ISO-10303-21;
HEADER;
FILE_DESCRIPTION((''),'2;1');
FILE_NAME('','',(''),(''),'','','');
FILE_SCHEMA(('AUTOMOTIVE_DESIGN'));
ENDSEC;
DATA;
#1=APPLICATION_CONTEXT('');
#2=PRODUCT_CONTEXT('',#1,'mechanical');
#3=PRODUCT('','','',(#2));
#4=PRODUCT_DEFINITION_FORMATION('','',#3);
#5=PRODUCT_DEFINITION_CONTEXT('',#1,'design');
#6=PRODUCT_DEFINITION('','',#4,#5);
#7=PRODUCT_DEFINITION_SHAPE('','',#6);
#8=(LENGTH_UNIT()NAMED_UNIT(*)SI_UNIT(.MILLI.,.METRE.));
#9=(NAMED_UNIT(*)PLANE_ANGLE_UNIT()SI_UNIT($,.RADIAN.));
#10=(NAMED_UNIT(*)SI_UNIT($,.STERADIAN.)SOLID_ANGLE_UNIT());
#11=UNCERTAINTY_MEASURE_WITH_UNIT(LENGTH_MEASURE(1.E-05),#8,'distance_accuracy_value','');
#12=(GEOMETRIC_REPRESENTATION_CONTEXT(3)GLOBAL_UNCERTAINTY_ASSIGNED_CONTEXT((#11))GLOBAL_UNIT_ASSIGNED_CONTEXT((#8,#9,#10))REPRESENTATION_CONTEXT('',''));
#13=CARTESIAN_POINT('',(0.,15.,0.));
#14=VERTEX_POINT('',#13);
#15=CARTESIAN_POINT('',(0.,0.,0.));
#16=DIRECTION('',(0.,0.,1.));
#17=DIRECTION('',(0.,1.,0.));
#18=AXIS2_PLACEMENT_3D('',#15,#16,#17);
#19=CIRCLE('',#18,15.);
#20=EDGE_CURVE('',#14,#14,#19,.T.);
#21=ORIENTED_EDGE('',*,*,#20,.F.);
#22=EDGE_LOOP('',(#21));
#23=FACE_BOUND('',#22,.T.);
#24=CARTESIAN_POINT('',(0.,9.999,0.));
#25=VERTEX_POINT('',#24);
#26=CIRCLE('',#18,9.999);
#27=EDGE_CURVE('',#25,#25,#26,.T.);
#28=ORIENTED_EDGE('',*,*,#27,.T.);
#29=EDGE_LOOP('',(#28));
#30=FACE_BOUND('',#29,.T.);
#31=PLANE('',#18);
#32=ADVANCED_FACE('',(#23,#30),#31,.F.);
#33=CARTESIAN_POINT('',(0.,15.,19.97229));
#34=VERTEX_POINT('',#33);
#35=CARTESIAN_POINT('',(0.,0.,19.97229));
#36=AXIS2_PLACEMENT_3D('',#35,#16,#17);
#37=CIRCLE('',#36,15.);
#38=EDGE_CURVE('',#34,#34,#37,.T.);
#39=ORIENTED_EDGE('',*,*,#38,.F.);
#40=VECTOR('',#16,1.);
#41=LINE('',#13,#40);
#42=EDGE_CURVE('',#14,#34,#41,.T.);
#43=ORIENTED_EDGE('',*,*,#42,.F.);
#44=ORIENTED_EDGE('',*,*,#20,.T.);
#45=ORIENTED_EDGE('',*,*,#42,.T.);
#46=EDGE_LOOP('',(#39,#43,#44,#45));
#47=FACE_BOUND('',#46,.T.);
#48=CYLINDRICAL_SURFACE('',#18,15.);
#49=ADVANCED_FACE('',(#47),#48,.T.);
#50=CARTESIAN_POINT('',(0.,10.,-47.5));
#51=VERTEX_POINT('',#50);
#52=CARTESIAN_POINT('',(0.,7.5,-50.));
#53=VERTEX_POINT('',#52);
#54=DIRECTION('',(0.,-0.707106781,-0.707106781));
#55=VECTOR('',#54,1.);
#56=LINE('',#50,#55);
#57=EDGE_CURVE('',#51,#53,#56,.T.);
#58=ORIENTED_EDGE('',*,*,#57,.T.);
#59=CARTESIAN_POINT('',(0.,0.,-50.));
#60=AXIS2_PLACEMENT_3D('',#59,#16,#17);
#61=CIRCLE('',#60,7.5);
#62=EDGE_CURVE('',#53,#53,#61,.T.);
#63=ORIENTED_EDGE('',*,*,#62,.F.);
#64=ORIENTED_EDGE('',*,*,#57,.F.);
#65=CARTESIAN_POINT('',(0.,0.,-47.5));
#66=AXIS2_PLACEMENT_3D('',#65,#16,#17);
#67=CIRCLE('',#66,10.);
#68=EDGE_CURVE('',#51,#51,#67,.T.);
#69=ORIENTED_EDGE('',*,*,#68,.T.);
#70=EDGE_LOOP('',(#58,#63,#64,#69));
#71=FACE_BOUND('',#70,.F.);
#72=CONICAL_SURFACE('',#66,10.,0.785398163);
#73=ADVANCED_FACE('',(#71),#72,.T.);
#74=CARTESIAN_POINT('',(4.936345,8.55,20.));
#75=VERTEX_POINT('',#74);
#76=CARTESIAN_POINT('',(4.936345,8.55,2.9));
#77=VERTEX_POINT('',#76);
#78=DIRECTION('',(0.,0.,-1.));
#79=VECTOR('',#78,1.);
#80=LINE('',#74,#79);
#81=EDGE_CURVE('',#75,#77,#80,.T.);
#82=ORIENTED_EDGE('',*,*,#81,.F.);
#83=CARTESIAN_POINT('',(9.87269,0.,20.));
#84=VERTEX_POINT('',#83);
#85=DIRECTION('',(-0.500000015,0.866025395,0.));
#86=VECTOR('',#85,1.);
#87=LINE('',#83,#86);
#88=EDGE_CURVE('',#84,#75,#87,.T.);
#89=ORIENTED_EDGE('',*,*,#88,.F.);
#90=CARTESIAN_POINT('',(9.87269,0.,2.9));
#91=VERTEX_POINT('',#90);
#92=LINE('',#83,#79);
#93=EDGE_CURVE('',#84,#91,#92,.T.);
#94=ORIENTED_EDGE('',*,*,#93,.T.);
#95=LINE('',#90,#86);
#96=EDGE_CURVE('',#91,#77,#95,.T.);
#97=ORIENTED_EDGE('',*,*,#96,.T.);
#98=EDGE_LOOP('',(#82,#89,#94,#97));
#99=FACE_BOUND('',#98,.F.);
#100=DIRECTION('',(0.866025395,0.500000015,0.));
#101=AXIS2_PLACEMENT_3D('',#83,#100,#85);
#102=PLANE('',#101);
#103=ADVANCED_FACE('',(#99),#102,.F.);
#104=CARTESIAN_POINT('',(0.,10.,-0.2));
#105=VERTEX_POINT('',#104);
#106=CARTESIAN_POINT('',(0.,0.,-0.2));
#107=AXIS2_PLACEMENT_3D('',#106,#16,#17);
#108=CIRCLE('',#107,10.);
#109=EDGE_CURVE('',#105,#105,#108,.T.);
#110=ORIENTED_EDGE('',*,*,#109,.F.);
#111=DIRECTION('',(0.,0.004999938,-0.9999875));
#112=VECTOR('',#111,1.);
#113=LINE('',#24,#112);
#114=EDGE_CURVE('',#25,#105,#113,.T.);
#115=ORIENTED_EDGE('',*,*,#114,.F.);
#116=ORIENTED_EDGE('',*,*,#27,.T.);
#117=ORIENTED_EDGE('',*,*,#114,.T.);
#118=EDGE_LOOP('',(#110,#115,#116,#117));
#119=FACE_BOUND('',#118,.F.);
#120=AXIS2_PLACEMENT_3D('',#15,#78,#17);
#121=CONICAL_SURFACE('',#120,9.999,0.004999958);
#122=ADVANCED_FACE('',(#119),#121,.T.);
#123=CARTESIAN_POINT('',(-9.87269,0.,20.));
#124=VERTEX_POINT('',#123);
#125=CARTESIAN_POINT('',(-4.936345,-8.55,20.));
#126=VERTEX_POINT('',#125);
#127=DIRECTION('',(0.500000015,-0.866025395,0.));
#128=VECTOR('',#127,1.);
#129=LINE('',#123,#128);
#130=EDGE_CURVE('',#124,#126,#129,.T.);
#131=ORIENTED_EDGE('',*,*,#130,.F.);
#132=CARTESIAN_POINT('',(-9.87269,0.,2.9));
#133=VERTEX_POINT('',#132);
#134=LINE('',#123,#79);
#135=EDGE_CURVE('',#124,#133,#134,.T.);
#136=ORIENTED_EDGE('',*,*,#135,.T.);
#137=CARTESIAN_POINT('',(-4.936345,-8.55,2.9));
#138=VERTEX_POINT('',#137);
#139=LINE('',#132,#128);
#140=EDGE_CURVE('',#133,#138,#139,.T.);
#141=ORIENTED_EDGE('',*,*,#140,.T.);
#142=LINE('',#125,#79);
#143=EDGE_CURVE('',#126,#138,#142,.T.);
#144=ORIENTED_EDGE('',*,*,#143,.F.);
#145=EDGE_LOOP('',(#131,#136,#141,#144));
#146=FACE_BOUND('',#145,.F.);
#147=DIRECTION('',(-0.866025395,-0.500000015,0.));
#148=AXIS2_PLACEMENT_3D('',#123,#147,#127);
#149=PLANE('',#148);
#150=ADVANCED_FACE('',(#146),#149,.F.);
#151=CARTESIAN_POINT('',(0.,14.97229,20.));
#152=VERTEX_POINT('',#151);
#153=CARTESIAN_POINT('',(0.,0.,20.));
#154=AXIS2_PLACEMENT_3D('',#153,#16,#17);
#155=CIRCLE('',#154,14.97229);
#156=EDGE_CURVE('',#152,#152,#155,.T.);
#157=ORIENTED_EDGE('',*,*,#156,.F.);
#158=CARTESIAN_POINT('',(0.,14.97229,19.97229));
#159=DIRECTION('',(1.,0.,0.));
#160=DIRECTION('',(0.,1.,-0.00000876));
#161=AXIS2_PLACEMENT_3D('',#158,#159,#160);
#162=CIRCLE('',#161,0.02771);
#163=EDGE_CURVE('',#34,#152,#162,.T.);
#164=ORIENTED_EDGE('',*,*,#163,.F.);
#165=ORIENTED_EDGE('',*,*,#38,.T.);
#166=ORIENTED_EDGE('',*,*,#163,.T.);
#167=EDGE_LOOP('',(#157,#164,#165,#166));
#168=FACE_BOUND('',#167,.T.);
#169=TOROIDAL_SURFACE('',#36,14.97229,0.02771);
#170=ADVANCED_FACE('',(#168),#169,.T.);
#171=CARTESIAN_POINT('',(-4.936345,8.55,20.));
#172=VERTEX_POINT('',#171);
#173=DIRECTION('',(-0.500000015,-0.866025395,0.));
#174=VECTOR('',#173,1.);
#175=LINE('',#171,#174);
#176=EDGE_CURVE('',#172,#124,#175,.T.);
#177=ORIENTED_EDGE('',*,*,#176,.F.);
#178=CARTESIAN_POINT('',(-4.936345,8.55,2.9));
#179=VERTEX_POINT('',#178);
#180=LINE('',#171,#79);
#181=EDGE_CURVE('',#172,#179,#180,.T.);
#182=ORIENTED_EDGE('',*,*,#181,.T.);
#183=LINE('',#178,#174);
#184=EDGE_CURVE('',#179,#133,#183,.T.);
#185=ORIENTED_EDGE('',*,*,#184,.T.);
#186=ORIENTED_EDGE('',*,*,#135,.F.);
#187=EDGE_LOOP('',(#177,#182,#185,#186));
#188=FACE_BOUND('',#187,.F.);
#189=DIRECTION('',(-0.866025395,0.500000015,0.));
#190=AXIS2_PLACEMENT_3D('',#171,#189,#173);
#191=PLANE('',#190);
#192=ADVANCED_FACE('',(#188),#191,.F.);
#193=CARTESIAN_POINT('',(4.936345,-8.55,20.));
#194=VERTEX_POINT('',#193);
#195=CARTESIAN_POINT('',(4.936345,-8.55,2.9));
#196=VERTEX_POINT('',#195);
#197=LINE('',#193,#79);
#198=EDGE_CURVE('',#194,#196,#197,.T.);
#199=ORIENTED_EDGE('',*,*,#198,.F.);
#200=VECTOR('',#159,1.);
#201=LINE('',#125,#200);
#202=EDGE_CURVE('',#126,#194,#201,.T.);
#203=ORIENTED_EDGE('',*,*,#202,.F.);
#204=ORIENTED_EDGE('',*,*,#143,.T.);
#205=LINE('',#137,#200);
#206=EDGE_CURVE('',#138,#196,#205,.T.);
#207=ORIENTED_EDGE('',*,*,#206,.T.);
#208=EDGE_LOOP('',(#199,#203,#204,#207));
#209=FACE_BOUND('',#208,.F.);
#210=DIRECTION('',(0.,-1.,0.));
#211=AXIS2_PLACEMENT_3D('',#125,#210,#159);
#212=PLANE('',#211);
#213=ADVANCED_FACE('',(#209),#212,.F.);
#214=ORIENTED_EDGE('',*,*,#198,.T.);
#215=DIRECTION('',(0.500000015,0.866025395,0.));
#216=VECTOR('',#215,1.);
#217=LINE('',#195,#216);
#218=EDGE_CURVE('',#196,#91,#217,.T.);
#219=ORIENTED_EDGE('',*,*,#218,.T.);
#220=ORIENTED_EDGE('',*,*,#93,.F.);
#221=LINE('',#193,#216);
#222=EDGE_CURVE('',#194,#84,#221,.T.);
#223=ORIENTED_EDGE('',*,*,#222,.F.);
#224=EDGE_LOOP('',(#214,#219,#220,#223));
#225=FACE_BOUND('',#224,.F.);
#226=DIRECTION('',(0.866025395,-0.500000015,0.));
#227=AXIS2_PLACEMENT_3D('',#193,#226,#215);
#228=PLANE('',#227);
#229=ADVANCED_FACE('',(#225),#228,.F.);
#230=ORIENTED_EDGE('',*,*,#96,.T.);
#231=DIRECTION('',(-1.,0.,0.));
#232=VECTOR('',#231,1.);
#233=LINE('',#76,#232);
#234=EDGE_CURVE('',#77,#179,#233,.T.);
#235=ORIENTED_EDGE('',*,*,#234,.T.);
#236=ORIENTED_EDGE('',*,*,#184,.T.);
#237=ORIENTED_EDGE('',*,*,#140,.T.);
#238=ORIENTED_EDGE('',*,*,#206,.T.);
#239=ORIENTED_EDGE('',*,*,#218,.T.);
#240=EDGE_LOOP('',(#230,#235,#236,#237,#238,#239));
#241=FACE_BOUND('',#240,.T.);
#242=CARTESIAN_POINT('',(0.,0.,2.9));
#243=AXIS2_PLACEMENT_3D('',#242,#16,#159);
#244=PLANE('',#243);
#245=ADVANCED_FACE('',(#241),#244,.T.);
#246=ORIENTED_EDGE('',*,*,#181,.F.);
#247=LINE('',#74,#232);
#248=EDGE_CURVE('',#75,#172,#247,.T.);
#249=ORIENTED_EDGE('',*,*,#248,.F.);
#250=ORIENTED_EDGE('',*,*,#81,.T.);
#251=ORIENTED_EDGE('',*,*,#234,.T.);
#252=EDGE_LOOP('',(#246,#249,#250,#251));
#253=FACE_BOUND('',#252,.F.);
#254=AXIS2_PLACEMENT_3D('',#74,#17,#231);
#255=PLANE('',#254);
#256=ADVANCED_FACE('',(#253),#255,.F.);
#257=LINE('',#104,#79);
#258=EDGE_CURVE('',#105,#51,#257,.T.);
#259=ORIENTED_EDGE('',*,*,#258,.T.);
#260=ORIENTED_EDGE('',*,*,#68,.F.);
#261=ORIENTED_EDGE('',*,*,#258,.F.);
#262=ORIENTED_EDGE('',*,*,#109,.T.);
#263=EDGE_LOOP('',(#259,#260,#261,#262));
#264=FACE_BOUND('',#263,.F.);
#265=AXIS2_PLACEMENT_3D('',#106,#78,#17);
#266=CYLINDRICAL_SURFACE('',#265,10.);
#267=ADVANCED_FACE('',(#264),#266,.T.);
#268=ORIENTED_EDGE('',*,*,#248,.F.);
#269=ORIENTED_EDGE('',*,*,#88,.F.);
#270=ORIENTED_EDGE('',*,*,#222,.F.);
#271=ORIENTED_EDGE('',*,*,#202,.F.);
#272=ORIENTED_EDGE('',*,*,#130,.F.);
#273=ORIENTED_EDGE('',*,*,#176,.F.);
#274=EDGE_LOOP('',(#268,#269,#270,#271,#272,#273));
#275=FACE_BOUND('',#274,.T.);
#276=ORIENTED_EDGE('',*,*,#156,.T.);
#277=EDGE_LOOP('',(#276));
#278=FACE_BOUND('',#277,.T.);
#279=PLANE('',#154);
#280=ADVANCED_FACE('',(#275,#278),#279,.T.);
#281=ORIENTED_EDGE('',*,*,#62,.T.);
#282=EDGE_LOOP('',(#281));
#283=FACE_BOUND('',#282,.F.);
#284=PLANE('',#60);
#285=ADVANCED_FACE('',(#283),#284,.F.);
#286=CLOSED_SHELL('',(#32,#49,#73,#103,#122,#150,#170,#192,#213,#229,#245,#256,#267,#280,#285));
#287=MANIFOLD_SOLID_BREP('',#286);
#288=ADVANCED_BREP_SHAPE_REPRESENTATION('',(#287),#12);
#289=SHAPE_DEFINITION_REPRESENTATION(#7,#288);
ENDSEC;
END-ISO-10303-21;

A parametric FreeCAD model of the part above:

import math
import FreeCAD as App
import Part
import Sketcher
from FreeCAD import Vector
Q = App.Units.Quantity

doc = App.newDocument("Part")
body = doc.addObject("PartDesign::Body", "Body")

sketch1 = body.newObject("Sketcher::SketchObject", "Sketch")
sketch1.AttachmentSupport = (doc.getObject("YZ_Plane"), [""])
sketch1.MapMode = "FlatFace"
sketch1.addGeometry(Part.LineSegment(Vector(9.999, 0, 0), Vector(15, 0, 0)), False)
sketch1.addGeometry(Part.LineSegment(Vector(15, 0, 0), Vector(15, 19.972, 0)), False)
sketch1.addGeometry(Part.ArcOfCircle(Part.Circle(Vector(14.972, 19.972, 0), Vector(0, 0, 1), 0.028), math.radians(0), math.radians(90)), False)
sketch1.addGeometry(Part.LineSegment(Vector(14.972, 20, 0), Vector(0, 20, 0)), False)
sketch1.addGeometry(Part.LineSegment(Vector(0, 20, 0), Vector(0, -50, 0)), False)
sketch1.addGeometry(Part.LineSegment(Vector(0, -50, 0), Vector(7.5, -50, 0)), False)
sketch1.addGeometry(Part.LineSegment(Vector(7.5, -50, 0), Vector(10, -47.5, 0)), False)
sketch1.addGeometry(Part.LineSegment(Vector(10, -47.5, 0), Vector(10, -0.2, 0)), False)
sketch1.addGeometry(Part.LineSegment(Vector(10, -0.2, 0), Vector(9.999, 0, 0)), False)
sketch1.addConstraint(Sketcher.Constraint("Coincident", 0, 2, 1, 1))
sketch1.addConstraint(Sketcher.Constraint("Coincident", 1, 2, 2, 1))
sketch1.addConstraint(Sketcher.Constraint("Coincident", 2, 2, 3, 1))
sketch1.addConstraint(Sketcher.Constraint("Coincident", 3, 2, 4, 1))
sketch1.addConstraint(Sketcher.Constraint("Coincident", 4, 2, 5, 1))
sketch1.addConstraint(Sketcher.Constraint("Coincident", 5, 2, 6, 1))
sketch1.addConstraint(Sketcher.Constraint("Coincident", 6, 2, 7, 1))
sketch1.addConstraint(Sketcher.Constraint("Coincident", 7, 2, 8, 1))
sketch1.addConstraint(Sketcher.Constraint("Coincident", 8, 2, 0, 1))
sketch1.addConstraint(Sketcher.Constraint("Horizontal", 0))
sketch1.addConstraint(Sketcher.Constraint("Vertical", 1))
sketch1.addConstraint(Sketcher.Constraint("Horizontal", 3))
sketch1.addConstraint(Sketcher.Constraint("Vertical", 4))
sketch1.addConstraint(Sketcher.Constraint("Horizontal", 5))
sketch1.addConstraint(Sketcher.Constraint("Vertical", 7))
sketch1.addConstraint(Sketcher.Constraint("PointOnObject", 0, 2, -1))
sketch1.addConstraint(Sketcher.Constraint("PointOnObject", 3, 2, -2))
sketch1.addConstraint(Sketcher.Constraint("Horizontal", 2, 3, 1, 2))
sketch1.addConstraint(Sketcher.Constraint("DistanceY", 4, 2, 4, 1, 70.0))
sketch1.addConstraint(Sketcher.Constraint("Angle", 6, Q("45 deg")))
sketch1.addConstraint(Sketcher.Constraint("DistanceX", 5, 1, 5, 2, 7.5))
sketch1.addConstraint(Sketcher.Constraint("DistanceY", 7, 1, 7, 2, 47.3))
sketch1.addConstraint(Sketcher.Constraint("DistanceX", -1, 1, 0, 2, 15.0))
sketch1.addConstraint(Sketcher.Constraint("DistanceY", -1, 1, 2, 2, 20.0))
sketch1.addConstraint(Sketcher.Constraint("DistanceX", -1, 1, 6, 2, 10.0))
sketch1.addConstraint(Sketcher.Constraint("DistanceX", 0, 1, 0, 2, 5.001))
sketch1.addConstraint(Sketcher.Constraint("Radius", 2, 0.02771))
sketch1.addConstraint(Sketcher.Constraint("DistanceX", 3, 2, 3, 1, 14.97229))
revolution = body.newObject("PartDesign::Revolution", "Revolution")
revolution.Profile = sketch1
revolution.ReferenceAxis = (sketch1, ["V_Axis"])
revolution.Angle = 360

sketch2 = body.newObject("Sketcher::SketchObject", "Sketch001")
sketch2.AttachmentSupport = (doc.getObject("XY_Plane"), [""])
sketch2.MapMode = "FlatFace"
sketch2.AttachmentOffset = App.Placement(Vector(0, 0, 20), App.Rotation())
sketch2.addGeometry(Part.LineSegment(Vector(10, 0, 0), Vector(5, 9, 0)), False)
sketch2.addGeometry(Part.LineSegment(Vector(5, 9, 0), Vector(-5, 9, 0)), False)
sketch2.addGeometry(Part.LineSegment(Vector(-5, 9, 0), Vector(-10, 0, 0)), False)
sketch2.addGeometry(Part.LineSegment(Vector(-10, 0, 0), Vector(-5, -9, 0)), False)
sketch2.addGeometry(Part.LineSegment(Vector(-5, -9, 0), Vector(5, -9, 0)), False)
sketch2.addGeometry(Part.LineSegment(Vector(5, -9, 0), Vector(10, 0, 0)), False)
sketch2.addConstraint(Sketcher.Constraint("Coincident", 0, 2, 1, 1))
sketch2.addConstraint(Sketcher.Constraint("Coincident", 1, 2, 2, 1))
sketch2.addConstraint(Sketcher.Constraint("Coincident", 2, 2, 3, 1))
sketch2.addConstraint(Sketcher.Constraint("Coincident", 3, 2, 4, 1))
sketch2.addConstraint(Sketcher.Constraint("Coincident", 4, 2, 5, 1))
sketch2.addConstraint(Sketcher.Constraint("Coincident", 5, 2, 0, 1))
sketch2.addConstraint(Sketcher.Constraint("Horizontal", 1))
sketch2.addConstraint(Sketcher.Constraint("Horizontal", 4))
sketch2.addConstraint(Sketcher.Constraint("Symmetric", 0, 2, 3, 2, -1, 1))
sketch2.addConstraint(Sketcher.Constraint("Symmetric", 2, 2, 5, 2, -1, 1))
sketch2.addConstraint(Sketcher.Constraint("PointOnObject", 2, 2, -1))
sketch2.addConstraint(Sketcher.Constraint("Parallel", 2, 5))
sketch2.addConstraint(Sketcher.Constraint("Vertical", 1, 2, 3, 2))
sketch2.addConstraint(Sketcher.Constraint("Angle", 0, Q("120.000001 deg")))
sketch2.addConstraint(Sketcher.Constraint("DistanceY", 3, 2, 1, 2, 17.1))
sketch2.addConstraint(Sketcher.Constraint("DistanceX", 1, 2, 1, 1, 9.87269))
pocket1 = body.newObject("PartDesign::Pocket", "Pocket")
pocket1.Profile = sketch2
pocket1.Length = 17.1

doc.recompute()
